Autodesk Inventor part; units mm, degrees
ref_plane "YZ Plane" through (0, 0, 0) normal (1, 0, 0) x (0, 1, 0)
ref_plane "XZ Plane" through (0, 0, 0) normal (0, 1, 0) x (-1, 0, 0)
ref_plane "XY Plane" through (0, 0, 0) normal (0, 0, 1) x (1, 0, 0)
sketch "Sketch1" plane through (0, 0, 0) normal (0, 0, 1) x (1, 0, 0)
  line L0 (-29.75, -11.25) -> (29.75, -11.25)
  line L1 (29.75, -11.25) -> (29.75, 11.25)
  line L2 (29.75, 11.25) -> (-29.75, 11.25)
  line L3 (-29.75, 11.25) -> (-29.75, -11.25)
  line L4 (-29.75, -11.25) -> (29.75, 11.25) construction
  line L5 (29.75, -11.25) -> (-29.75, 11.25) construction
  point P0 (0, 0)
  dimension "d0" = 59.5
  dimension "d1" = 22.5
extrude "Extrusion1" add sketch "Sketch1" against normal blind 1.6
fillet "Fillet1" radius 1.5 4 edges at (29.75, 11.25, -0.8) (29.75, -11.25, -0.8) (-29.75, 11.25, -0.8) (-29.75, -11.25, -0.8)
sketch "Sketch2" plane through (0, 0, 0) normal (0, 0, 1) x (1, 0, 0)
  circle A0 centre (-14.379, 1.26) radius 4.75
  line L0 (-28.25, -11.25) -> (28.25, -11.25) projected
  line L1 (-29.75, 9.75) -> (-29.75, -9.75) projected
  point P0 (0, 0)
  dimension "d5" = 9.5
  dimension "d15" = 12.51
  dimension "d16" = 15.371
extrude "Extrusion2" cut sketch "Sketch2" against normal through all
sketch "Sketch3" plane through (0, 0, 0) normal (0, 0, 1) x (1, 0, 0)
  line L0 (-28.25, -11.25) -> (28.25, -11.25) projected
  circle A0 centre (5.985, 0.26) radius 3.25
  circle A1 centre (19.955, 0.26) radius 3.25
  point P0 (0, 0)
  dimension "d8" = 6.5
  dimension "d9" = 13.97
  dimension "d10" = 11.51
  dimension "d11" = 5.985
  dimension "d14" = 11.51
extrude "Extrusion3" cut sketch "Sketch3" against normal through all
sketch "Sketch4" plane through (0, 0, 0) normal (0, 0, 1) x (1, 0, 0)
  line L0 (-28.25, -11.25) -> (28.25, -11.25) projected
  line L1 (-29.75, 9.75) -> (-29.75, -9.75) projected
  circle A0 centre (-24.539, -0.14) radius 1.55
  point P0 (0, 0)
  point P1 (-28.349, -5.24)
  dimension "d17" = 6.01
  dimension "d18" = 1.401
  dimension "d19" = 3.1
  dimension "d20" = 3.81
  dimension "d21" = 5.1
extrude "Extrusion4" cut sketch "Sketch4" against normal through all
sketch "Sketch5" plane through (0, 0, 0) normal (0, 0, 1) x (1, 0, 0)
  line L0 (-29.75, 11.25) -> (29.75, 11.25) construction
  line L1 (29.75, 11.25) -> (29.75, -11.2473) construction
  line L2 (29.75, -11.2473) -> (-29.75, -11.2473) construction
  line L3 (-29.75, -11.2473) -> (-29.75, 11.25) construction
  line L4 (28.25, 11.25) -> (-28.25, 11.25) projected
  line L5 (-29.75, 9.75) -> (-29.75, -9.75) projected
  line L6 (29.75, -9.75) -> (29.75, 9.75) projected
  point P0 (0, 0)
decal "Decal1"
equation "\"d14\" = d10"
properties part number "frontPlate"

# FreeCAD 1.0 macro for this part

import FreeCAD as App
import Part
import Sketcher
from FreeCAD import Vector
Q = App.Units.Quantity


def edges_at(feature, points):
    """Names of the edges that pass closest to the given points."""
    edges = feature.Shape.Edges
    near = lambda p: min(range(len(edges)), key=lambda i: edges[i].distToShape(Part.Vertex(*p))[0])
    return sorted({f"Edge{near(p) + 1}" for p in points})


def add_polygon(sketch, points):
    """Adds a closed chain of lines whose ends are joined by coincident constraints."""
    first, n = sketch.GeometryCount, len(points)
    for a, b in zip(points, points[1:] + points[:1]):
        sketch.addGeometry(Part.LineSegment(App.Vector(*a, 0), App.Vector(*b, 0)), False)
    for i in range(n):
        sketch.addConstraint(Sketcher.Constraint("Coincident", first + i, 2, first + (i + 1) % n, 1))

doc = App.newDocument("Part")
body = doc.addObject("PartDesign::Body", "Body")

sketch1 = doc.addObject("Sketcher::SketchObject", "Sketch")
body.addObject(sketch1)
sketch1.AttachmentSupport = (doc.XY_Plane, [""])
sketch1.MapMode = "FlatFace"
add_polygon(sketch1, [(-29.75, 11.25), (-29.75, -11.25), (29.75, -11.25), (29.75, 11.25)])
sketch1.addConstraint(Sketcher.Constraint("Vertical", 0))
sketch1.addConstraint(Sketcher.Constraint("Horizontal", 1))
sketch1.addConstraint(Sketcher.Constraint("Vertical", 2))
sketch1.addConstraint(Sketcher.Constraint("Horizontal", 3))
sketch1.addConstraint(Sketcher.Constraint("Symmetric", 0, 2, 2, 2, -1, 1))
sketch1.addConstraint(Sketcher.Constraint("DistanceX", 1, 1, 1, 2, Q("59.5 mm")))
sketch1.addConstraint(Sketcher.Constraint("DistanceY", 0, 2, 0, 1, Q("22.5 mm")))
pad1 = doc.addObject("PartDesign::Pad", "Pad")
body.addObject(pad1)
pad1.Profile = sketch1
pad1.Length = 1.6
pad1.Reversed = True
doc.recompute()

fillet = doc.addObject("PartDesign::Fillet", "Fillet")
body.addObject(fillet)
fillet.Base = (pad1, edges_at(pad1, [
    (29.75, 11.25, -0.8),
    (29.75, -11.25, -0.8),
    (-29.75, 11.25, -0.8),
    (-29.75, -11.25, -0.8),
]))
fillet.Radius = 1.5

sketch2 = doc.addObject("Sketcher::SketchObject", "Sketch001")
body.addObject(sketch2)
sketch2.AttachmentSupport = (doc.XY_Plane, [""])
sketch2.MapMode = "FlatFace"
sketch2.addGeometry(Part.Circle(Vector(-14.379, 1.26, 0), Vector(0, 0, 1), 4.75), False)
sketch2.addConstraint(Sketcher.Constraint("Diameter", 0, Q("9.5 mm")))
sketch2.addConstraint(Sketcher.Constraint("DistanceY", -1, 1, 0, 3, Q("1.26 mm")))
sketch2.addConstraint(Sketcher.Constraint("DistanceX", 0, 3, -1, 1, Q("14.379 mm")))
pocket1 = doc.addObject("PartDesign::Pocket", "Pocket")
body.addObject(pocket1)
pocket1.Profile = sketch2
pocket1.Type = "ThroughAll"

sketch3 = doc.addObject("Sketcher::SketchObject", "Sketch002")
body.addObject(sketch3)
sketch3.AttachmentSupport = (doc.XY_Plane, [""])
sketch3.MapMode = "FlatFace"
sketch3.addGeometry(Part.Circle(Vector(5.985, 0.26, 0), Vector(0, 0, 1), 3.25), False)
sketch3.addGeometry(Part.Circle(Vector(19.955, 0.26, 0), Vector(0, 0, 1), 3.25), False)
sketch3.addConstraint(Sketcher.Constraint("Equal", 0, 1))
sketch3.addConstraint(Sketcher.Constraint("Horizontal", 0, 3, 1, 3))
sketch3.addConstraint(Sketcher.Constraint("Diameter", 0, Q("6.5 mm")))
sketch3.addConstraint(Sketcher.Constraint("DistanceX", 0, 3, 1, 3, Q("13.97 mm")))
sketch3.addConstraint(Sketcher.Constraint("DistanceX", -1, 1, 0, 3, Q("5.985 mm")))
sketch3.addConstraint(Sketcher.Constraint("DistanceY", -1, 1, 0, 3, Q("0.26 mm")))
pocket2 = doc.addObject("PartDesign::Pocket", "Pocket001")
body.addObject(pocket2)
pocket2.Profile = sketch3
pocket2.Type = "ThroughAll"

sketch4 = doc.addObject("Sketcher::SketchObject", "Sketch003")
body.addObject(sketch4)
sketch4.AttachmentSupport = (doc.XY_Plane, [""])
sketch4.MapMode = "FlatFace"
sketch4.addGeometry(Part.Circle(Vector(-24.539, -0.14, 0), Vector(0, 0, 1), 1.55), False)
sketch4.addConstraint(Sketcher.Constraint("Diameter", 0, Q("3.1 mm")))
sketch4.addConstraint(Sketcher.Constraint("DistanceY", 0, 3, -1, 1, Q("0.14 mm")))
sketch4.addConstraint(Sketcher.Constraint("DistanceX", 0, 3, -1, 1, Q("24.539 mm")))
pocket3 = doc.addObject("PartDesign::Pocket", "Pocket002")
body.addObject(pocket3)
pocket3.Profile = sketch4
pocket3.Type = "ThroughAll"

doc.recompute()
